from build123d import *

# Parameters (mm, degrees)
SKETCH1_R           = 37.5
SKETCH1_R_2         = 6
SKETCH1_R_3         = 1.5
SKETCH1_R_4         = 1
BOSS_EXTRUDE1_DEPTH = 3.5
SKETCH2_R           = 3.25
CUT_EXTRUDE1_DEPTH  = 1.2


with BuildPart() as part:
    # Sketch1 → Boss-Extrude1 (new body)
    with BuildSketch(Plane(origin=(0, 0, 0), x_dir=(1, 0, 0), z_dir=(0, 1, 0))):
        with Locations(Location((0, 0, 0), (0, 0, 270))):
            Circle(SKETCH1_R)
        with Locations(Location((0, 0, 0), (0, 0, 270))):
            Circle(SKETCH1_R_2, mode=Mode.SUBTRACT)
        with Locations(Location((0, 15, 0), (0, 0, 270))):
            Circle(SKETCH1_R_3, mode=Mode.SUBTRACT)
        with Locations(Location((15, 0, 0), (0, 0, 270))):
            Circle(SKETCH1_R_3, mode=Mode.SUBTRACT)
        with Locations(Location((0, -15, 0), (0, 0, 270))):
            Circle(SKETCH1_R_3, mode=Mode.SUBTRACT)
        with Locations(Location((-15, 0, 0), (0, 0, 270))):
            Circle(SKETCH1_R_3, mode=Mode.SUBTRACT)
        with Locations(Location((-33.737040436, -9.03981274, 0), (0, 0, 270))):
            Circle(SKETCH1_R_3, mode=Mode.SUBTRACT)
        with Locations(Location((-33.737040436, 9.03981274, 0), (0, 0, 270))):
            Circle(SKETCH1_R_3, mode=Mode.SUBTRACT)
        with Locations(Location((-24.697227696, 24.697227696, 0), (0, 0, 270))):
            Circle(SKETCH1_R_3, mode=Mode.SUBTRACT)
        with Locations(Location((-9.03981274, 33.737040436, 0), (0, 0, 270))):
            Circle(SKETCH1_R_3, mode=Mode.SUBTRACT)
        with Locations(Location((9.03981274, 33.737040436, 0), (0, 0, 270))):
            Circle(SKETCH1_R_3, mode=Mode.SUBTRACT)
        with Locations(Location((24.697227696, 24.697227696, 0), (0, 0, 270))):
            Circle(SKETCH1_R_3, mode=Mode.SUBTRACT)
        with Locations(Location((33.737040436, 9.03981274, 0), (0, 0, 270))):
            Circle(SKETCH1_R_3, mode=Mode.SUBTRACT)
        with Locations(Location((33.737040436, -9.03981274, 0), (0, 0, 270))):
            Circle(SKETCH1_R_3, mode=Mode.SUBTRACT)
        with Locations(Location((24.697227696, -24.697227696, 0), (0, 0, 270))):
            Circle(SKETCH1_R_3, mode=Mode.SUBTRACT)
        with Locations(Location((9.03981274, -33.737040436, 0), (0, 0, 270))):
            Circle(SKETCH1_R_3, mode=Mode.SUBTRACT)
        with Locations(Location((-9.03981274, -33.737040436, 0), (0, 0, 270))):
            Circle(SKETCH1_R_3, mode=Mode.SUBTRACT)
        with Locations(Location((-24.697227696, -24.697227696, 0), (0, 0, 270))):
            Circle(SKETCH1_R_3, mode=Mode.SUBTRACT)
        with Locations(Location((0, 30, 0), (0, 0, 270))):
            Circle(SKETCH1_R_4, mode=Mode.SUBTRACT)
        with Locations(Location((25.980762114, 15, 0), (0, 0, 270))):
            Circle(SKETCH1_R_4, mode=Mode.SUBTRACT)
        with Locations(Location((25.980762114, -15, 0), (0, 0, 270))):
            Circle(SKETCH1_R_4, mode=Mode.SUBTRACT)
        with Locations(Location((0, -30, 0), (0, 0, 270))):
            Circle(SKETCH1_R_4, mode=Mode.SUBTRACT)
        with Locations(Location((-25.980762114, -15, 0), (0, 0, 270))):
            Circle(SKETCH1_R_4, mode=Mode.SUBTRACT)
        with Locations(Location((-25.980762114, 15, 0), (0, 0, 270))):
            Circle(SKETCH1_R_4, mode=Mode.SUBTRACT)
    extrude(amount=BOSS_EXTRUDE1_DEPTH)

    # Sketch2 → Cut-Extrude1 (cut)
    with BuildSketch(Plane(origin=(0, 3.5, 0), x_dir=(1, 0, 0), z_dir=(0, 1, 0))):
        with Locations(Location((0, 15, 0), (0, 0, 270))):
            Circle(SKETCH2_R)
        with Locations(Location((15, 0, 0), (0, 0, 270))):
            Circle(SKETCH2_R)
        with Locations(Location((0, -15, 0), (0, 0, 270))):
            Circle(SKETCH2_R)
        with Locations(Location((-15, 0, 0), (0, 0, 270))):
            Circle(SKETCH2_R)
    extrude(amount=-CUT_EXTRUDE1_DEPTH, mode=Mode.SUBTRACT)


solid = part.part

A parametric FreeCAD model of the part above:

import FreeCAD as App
import Part
import Sketcher
Q = App.Units.Quantity

doc = App.newDocument("Part")
params = doc.addObject("Spreadsheet::Sheet", "Params")
for row, (alias, value) in enumerate([
    ("sketch1_diameter", "75 mm"),
    ("sketch1_diameter2", "3 mm"),
    ("sketch1_diameter3", "2 mm"),
    ("sketch1_diameter4", "12 mm"),
    ("pad1_length", "3.5 mm"),
    ("sketch2_diameter", "6.5 mm"),
    ("pocket1_length", "1.2 mm"),
], start=1):
    params.set(f"A{row}", alias)
    params.set(f"B{row}", "=" + value)
    params.setAlias(f"B{row}", alias)

body = doc.addObject("PartDesign::Body", "Body")

sketch1 = body.newObject("Sketcher::SketchObject", "Sketch")
sketch1.AttachmentSupport = (doc.getObject("XZ_Plane"), [""])
sketch1.MapMode = "FlatFace"
sketch1.addGeometry([
    Part.Circle(App.Vector(0, 0, 0), App.Vector(0, 0, 1), 37.5),
    Part.Circle(App.Vector(-24.697228, -24.697228, 0), App.Vector(0, 0, 1), 1.5),
    Part.Circle(App.Vector(-33.73704, -9.039813, 0), App.Vector(0, 0, 1), 1.5),
    Part.Circle(App.Vector(-25.980762, -15, 0), App.Vector(0, 0, 1), 1),
    Part.Circle(App.Vector(-9.039813, -33.73704, 0), App.Vector(0, 0, 1), 1.5),
    Part.Circle(App.Vector(0, -30, 0), App.Vector(0, 0, 1), 1),
    Part.Circle(App.Vector(0, -15, 0), App.Vector(0, 0, 1), 1.5),
    Part.Circle(App.Vector(-33.73704, 9.039813, 0), App.Vector(0, 0, 1), 1.5),
    Part.Circle(App.Vector(-25.980762, 15, 0), App.Vector(0, 0, 1), 1),
    Part.Circle(App.Vector(-24.697228, 24.697228, 0), App.Vector(0, 0, 1), 1.5),
    Part.Circle(App.Vector(-15, 0, 0), App.Vector(0, 0, 1), 1.5),
    Part.Circle(App.Vector(-9.039813, 33.73704, 0), App.Vector(0, 0, 1), 1.5),
    Part.Circle(App.Vector(9.039813, -33.73704, 0), App.Vector(0, 0, 1), 1.5),
    Part.Circle(App.Vector(24.697228, -24.697228, 0), App.Vector(0, 0, 1), 1.5),
    Part.Circle(App.Vector(25.980762, -15, 0), App.Vector(0, 0, 1), 1),
    Part.Circle(App.Vector(33.73704, -9.039813, 0), App.Vector(0, 0, 1), 1.5),
    Part.Circle(App.Vector(0, 0, 0), App.Vector(0, 0, 1), 6),
    Part.Circle(App.Vector(0, 15, 0), App.Vector(0, 0, 1), 1.5),
    Part.Circle(App.Vector(15, 0, 0), App.Vector(0, 0, 1), 1.5),
    Part.Circle(App.Vector(0, 30, 0), App.Vector(0, 0, 1), 1),
    Part.Circle(App.Vector(9.039813, 33.73704, 0), App.Vector(0, 0, 1), 1.5),
    Part.Circle(App.Vector(25.980762, 15, 0), App.Vector(0, 0, 1), 1),
    Part.Circle(App.Vector(33.73704, 9.039813, 0), App.Vector(0, 0, 1), 1.5),
    Part.Circle(App.Vector(24.697228, 24.697228, 0), App.Vector(0, 0, 1), 1.5),
], False)
sketch1.addConstraint([
    Sketcher.Constraint("Coincident", 0, 3, -1, 1),
    Sketcher.Constraint("Coincident", 16, 3, -1, 1),
    Sketcher.Constraint("Equal", 1, 2),
    Sketcher.Constraint("Equal", 2, 4),
    Sketcher.Constraint("Equal", 3, 5),
    Sketcher.Constraint("Equal", 4, 6),
    Sketcher.Constraint("Equal", 6, 7),
    Sketcher.Constraint("Equal", 5, 8),
    Sketcher.Constraint("Equal", 7, 9),
    Sketcher.Constraint("Equal", 9, 10),
    Sketcher.Constraint("Equal", 10, 11),
    Sketcher.Constraint("Equal", 11, 12),
    Sketcher.Constraint("Equal", 12, 13),
    Sketcher.Constraint("Equal", 8, 14),
    Sketcher.Constraint("Equal", 13, 15),
    Sketcher.Constraint("Equal", 15, 17),
    Sketcher.Constraint("Equal", 17, 18),
    Sketcher.Constraint("Equal", 14, 19),
    Sketcher.Constraint("Equal", 18, 20),
    Sketcher.Constraint("Equal", 19, 21),
    Sketcher.Constraint("Equal", 20, 22),
    Sketcher.Constraint("Equal", 22, 23),
    Sketcher.Constraint("Symmetric", 11, 3, 12, 3, -1, 1),
    Sketcher.Constraint("Symmetric", 9, 3, 13, 3, -1, 1),
    Sketcher.Constraint("Symmetric", 8, 3, 14, 3, -1, 1),
    Sketcher.Constraint("Symmetric", 7, 3, 15, 3, -1, 1),
    Sketcher.Constraint("Symmetric", 6, 3, 17, 3, -1, 1),
    Sketcher.Constraint("Symmetric", 10, 3, 18, 3, -1, 1),
    Sketcher.Constraint("Symmetric", 5, 3, 19, 3, -1, 1),
    Sketcher.Constraint("Symmetric", 4, 3, 20, 3, -1, 1),
    Sketcher.Constraint("Symmetric", 3, 3, 21, 3, -1, 1),
    Sketcher.Constraint("Symmetric", 2, 3, 22, 3, -1, 1),
    Sketcher.Constraint("Symmetric", 1, 3, 23, 3, -1, 1),
    Sketcher.Constraint("Symmetric", 4, 3, 12, 3, -2),
    Sketcher.Constraint("Symmetric", 1, 3, 13, 3, -2),
    Sketcher.Constraint("Symmetric", 3, 3, 14, 3, -2),
    Sketcher.Constraint("Symmetric", 2, 3, 15, 3, -2),
    Sketcher.Constraint("PointOnObject", 5, 3, -2),
    Sketcher.Constraint("PointOnObject", 6, 3, -2),
    Sketcher.Constraint("PointOnObject", 10, 3, -1),
    Sketcher.Constraint("Horizontal", 3, 3, 6, 3),
    Sketcher.Constraint("Diameter", 0, Q("75 mm")),
    Sketcher.Constraint("Diameter", 1, Q("3 mm")),
    Sketcher.Constraint("Diameter", 3, Q("2 mm")),
    Sketcher.Constraint("Diameter", 16, Q("12 mm")),
    Sketcher.Constraint("DistanceY", 3, 3, -1, 1, Q("15 mm")),
    Sketcher.Constraint("DistanceY", 5, 3, -1, 1, Q("30 mm")),
    Sketcher.Constraint("DistanceX", 10, 3, -1, 1, Q("15 mm")),
    Sketcher.Constraint("DistanceX", 2, 3, -1, 1, Q("33.73704 mm")),
    Sketcher.Constraint("DistanceY", 4, 3, -1, 1, Q("33.73704 mm")),
    Sketcher.Constraint("DistanceX", 2, 3, 3, 3, Q("7.756278 mm")),
    Sketcher.Constraint("DistanceX", 3, 3, 4, 3, Q("16.940949 mm")),
    Sketcher.Constraint("DistanceY", 1, 3, 7, 3, Q("33.73704 mm")),
    Sketcher.Constraint("DistanceX", 1, 3, 12, 3, Q("33.73704 mm")),
    Sketcher.Constraint("DistanceY", 1, 3, -1, 1, Q("24.697228 mm")),
])
sketch1.setExpression("Constraints[41]", "Params.sketch1_diameter")
sketch1.setExpression("Constraints[42]", "Params.sketch1_diameter2")
sketch1.setExpression("Constraints[43]", "Params.sketch1_diameter3")
sketch1.setExpression("Constraints[44]", "Params.sketch1_diameter4")
pad1 = body.newObject("PartDesign::Pad", "Pad")
pad1.Profile = sketch1
pad1.setExpression("Length", "Params.pad1_length")
pad1.Reversed = True

sketch2 = body.newObject("Sketcher::SketchObject", "Sketch001")
sketch2.AttachmentSupport = (doc.getObject("XZ_Plane"), [""])
sketch2.MapMode = "FlatFace"
sketch2.AttachmentOffset = App.Placement(App.Vector(0, 0, -3.5), App.Rotation())
sketch2.addGeometry([
    Part.Circle(App.Vector(0, -15, 0), App.Vector(0, 0, 1), 3.25),
    Part.Circle(App.Vector(15, 0, 0), App.Vector(0, 0, 1), 3.25),
    Part.Circle(App.Vector(0, 15, 0), App.Vector(0, 0, 1), 3.25),
    Part.Circle(App.Vector(-15, 0, 0), App.Vector(0, 0, 1), 3.25),
], False)
sketch2.addConstraint([
    Sketcher.Constraint("Equal", 0, 1),
    Sketcher.Constraint("Equal", 1, 2),
    Sketcher.Constraint("Equal", 2, 3),
    Sketcher.Constraint("Symmetric", 0, 3, 2, 3, -1, 1),
    Sketcher.Constraint("Symmetric", 1, 3, 3, 3, -1, 1),
    Sketcher.Constraint("PointOnObject", 0, 3, -2),
    Sketcher.Constraint("PointOnObject", 1, 3, -1),
    Sketcher.Constraint("Diameter", 0, Q("6.5 mm")),
    Sketcher.Constraint("DistanceY", 0, 3, -1, 1, Q("15 mm")),
    Sketcher.Constraint("DistanceX", -1, 1, 1, 3, Q("15 mm")),
])
sketch2.setExpression("Constraints[7]", "Params.sketch2_diameter")
pocket1 = body.newObject("PartDesign::Pocket", "Pocket")
pocket1.Profile = sketch2
pocket1.setExpression("Length", "Params.pocket1_length")
pocket1.Reversed = True

doc.recompute()
